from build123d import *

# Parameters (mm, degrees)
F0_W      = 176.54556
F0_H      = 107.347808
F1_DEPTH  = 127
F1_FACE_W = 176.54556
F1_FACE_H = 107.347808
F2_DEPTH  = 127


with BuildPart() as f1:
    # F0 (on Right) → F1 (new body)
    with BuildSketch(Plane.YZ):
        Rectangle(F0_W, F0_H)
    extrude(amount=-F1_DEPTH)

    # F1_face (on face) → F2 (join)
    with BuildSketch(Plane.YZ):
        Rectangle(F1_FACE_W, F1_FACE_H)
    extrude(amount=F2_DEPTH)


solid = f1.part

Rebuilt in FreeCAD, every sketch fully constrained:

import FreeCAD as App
import Part
import Sketcher
Q = App.Units.Quantity

doc = App.newDocument("Part")
params = doc.addObject("Spreadsheet::Sheet", "Params")
for row, (alias, value) in enumerate([
    ("pad1_length", "5 in"),
    ("pad2_length", "5 in"),
], start=1):
    params.set(f"A{row}", alias)
    params.set(f"B{row}", "=" + value)
    params.setAlias(f"B{row}", alias)

body = doc.addObject("PartDesign::Body", "Body")

sketch1 = body.newObject("Sketcher::SketchObject", "Sketch")
sketch1.AttachmentSupport = (doc.getObject("YZ_Plane"), [""])
sketch1.MapMode = "FlatFace"
sketch1.addGeometry([
    Part.LineSegment(App.Vector(-88, 54, 0), App.Vector(-88, -54, 0)),
    Part.LineSegment(App.Vector(-88, -54, 0), App.Vector(88, -54, 0)),
    Part.LineSegment(App.Vector(88, -54, 0), App.Vector(88, 54, 0)),
    Part.LineSegment(App.Vector(88, 54, 0), App.Vector(-88, 54, 0)),
], False)
sketch1.addConstraint([
    Sketcher.Constraint("Coincident", 0, 2, 1, 1),
    Sketcher.Constraint("Coincident", 1, 2, 2, 1),
    Sketcher.Constraint("Coincident", 2, 2, 3, 1),
    Sketcher.Constraint("Coincident", 3, 2, 0, 1),
    Sketcher.Constraint("Vertical", 0),
    Sketcher.Constraint("Horizontal", 1),
    Sketcher.Constraint("Vertical", 2),
    Sketcher.Constraint("Horizontal", 3),
    Sketcher.Constraint("Symmetric", 0, 2, 2, 2, -1, 1),
    Sketcher.Constraint("DistanceX", 1, 1, 1, 2, Q("176.54556 mm")),
    Sketcher.Constraint("DistanceY", 0, 2, 0, 1, Q("107.347808 mm")),
])
pad1 = body.newObject("PartDesign::Pad", "Pad")
pad1.Profile = sketch1
pad1.setExpression("Length", "Params.pad1_length")
pad1.Reversed = True

sketch2 = body.newObject("Sketcher::SketchObject", "Sketch001")
sketch2.AttachmentSupport = (doc.getObject("YZ_Plane"), [""])
sketch2.MapMode = "FlatFace"
sketch2.addGeometry([
    Part.LineSegment(App.Vector(-88, 54, 0), App.Vector(-88, -54, 0)),
    Part.LineSegment(App.Vector(-88, -54, 0), App.Vector(88, -54, 0)),
    Part.LineSegment(App.Vector(88, -54, 0), App.Vector(88, 54, 0)),
    Part.LineSegment(App.Vector(88, 54, 0), App.Vector(-88, 54, 0)),
], False)
sketch2.addConstraint([
    Sketcher.Constraint("Coincident", 0, 2, 1, 1),
    Sketcher.Constraint("Coincident", 1, 2, 2, 1),
    Sketcher.Constraint("Coincident", 2, 2, 3, 1),
    Sketcher.Constraint("Coincident", 3, 2, 0, 1),
    Sketcher.Constraint("Vertical", 0),
    Sketcher.Constraint("Horizontal", 1),
    Sketcher.Constraint("Vertical", 2),
    Sketcher.Constraint("Horizontal", 3),
    Sketcher.Constraint("Symmetric", 0, 2, 2, 2, -1, 1),
    Sketcher.Constraint("DistanceX", 1, 1, 1, 2, Q("176.54556 mm")),
    Sketcher.Constraint("DistanceY", 0, 2, 0, 1, Q("107.347808 mm")),
])
pad2 = body.newObject("PartDesign::Pad", "Pad001")
pad2.Profile = sketch2
pad2.setExpression("Length", "Params.pad2_length")

doc.recompute()
